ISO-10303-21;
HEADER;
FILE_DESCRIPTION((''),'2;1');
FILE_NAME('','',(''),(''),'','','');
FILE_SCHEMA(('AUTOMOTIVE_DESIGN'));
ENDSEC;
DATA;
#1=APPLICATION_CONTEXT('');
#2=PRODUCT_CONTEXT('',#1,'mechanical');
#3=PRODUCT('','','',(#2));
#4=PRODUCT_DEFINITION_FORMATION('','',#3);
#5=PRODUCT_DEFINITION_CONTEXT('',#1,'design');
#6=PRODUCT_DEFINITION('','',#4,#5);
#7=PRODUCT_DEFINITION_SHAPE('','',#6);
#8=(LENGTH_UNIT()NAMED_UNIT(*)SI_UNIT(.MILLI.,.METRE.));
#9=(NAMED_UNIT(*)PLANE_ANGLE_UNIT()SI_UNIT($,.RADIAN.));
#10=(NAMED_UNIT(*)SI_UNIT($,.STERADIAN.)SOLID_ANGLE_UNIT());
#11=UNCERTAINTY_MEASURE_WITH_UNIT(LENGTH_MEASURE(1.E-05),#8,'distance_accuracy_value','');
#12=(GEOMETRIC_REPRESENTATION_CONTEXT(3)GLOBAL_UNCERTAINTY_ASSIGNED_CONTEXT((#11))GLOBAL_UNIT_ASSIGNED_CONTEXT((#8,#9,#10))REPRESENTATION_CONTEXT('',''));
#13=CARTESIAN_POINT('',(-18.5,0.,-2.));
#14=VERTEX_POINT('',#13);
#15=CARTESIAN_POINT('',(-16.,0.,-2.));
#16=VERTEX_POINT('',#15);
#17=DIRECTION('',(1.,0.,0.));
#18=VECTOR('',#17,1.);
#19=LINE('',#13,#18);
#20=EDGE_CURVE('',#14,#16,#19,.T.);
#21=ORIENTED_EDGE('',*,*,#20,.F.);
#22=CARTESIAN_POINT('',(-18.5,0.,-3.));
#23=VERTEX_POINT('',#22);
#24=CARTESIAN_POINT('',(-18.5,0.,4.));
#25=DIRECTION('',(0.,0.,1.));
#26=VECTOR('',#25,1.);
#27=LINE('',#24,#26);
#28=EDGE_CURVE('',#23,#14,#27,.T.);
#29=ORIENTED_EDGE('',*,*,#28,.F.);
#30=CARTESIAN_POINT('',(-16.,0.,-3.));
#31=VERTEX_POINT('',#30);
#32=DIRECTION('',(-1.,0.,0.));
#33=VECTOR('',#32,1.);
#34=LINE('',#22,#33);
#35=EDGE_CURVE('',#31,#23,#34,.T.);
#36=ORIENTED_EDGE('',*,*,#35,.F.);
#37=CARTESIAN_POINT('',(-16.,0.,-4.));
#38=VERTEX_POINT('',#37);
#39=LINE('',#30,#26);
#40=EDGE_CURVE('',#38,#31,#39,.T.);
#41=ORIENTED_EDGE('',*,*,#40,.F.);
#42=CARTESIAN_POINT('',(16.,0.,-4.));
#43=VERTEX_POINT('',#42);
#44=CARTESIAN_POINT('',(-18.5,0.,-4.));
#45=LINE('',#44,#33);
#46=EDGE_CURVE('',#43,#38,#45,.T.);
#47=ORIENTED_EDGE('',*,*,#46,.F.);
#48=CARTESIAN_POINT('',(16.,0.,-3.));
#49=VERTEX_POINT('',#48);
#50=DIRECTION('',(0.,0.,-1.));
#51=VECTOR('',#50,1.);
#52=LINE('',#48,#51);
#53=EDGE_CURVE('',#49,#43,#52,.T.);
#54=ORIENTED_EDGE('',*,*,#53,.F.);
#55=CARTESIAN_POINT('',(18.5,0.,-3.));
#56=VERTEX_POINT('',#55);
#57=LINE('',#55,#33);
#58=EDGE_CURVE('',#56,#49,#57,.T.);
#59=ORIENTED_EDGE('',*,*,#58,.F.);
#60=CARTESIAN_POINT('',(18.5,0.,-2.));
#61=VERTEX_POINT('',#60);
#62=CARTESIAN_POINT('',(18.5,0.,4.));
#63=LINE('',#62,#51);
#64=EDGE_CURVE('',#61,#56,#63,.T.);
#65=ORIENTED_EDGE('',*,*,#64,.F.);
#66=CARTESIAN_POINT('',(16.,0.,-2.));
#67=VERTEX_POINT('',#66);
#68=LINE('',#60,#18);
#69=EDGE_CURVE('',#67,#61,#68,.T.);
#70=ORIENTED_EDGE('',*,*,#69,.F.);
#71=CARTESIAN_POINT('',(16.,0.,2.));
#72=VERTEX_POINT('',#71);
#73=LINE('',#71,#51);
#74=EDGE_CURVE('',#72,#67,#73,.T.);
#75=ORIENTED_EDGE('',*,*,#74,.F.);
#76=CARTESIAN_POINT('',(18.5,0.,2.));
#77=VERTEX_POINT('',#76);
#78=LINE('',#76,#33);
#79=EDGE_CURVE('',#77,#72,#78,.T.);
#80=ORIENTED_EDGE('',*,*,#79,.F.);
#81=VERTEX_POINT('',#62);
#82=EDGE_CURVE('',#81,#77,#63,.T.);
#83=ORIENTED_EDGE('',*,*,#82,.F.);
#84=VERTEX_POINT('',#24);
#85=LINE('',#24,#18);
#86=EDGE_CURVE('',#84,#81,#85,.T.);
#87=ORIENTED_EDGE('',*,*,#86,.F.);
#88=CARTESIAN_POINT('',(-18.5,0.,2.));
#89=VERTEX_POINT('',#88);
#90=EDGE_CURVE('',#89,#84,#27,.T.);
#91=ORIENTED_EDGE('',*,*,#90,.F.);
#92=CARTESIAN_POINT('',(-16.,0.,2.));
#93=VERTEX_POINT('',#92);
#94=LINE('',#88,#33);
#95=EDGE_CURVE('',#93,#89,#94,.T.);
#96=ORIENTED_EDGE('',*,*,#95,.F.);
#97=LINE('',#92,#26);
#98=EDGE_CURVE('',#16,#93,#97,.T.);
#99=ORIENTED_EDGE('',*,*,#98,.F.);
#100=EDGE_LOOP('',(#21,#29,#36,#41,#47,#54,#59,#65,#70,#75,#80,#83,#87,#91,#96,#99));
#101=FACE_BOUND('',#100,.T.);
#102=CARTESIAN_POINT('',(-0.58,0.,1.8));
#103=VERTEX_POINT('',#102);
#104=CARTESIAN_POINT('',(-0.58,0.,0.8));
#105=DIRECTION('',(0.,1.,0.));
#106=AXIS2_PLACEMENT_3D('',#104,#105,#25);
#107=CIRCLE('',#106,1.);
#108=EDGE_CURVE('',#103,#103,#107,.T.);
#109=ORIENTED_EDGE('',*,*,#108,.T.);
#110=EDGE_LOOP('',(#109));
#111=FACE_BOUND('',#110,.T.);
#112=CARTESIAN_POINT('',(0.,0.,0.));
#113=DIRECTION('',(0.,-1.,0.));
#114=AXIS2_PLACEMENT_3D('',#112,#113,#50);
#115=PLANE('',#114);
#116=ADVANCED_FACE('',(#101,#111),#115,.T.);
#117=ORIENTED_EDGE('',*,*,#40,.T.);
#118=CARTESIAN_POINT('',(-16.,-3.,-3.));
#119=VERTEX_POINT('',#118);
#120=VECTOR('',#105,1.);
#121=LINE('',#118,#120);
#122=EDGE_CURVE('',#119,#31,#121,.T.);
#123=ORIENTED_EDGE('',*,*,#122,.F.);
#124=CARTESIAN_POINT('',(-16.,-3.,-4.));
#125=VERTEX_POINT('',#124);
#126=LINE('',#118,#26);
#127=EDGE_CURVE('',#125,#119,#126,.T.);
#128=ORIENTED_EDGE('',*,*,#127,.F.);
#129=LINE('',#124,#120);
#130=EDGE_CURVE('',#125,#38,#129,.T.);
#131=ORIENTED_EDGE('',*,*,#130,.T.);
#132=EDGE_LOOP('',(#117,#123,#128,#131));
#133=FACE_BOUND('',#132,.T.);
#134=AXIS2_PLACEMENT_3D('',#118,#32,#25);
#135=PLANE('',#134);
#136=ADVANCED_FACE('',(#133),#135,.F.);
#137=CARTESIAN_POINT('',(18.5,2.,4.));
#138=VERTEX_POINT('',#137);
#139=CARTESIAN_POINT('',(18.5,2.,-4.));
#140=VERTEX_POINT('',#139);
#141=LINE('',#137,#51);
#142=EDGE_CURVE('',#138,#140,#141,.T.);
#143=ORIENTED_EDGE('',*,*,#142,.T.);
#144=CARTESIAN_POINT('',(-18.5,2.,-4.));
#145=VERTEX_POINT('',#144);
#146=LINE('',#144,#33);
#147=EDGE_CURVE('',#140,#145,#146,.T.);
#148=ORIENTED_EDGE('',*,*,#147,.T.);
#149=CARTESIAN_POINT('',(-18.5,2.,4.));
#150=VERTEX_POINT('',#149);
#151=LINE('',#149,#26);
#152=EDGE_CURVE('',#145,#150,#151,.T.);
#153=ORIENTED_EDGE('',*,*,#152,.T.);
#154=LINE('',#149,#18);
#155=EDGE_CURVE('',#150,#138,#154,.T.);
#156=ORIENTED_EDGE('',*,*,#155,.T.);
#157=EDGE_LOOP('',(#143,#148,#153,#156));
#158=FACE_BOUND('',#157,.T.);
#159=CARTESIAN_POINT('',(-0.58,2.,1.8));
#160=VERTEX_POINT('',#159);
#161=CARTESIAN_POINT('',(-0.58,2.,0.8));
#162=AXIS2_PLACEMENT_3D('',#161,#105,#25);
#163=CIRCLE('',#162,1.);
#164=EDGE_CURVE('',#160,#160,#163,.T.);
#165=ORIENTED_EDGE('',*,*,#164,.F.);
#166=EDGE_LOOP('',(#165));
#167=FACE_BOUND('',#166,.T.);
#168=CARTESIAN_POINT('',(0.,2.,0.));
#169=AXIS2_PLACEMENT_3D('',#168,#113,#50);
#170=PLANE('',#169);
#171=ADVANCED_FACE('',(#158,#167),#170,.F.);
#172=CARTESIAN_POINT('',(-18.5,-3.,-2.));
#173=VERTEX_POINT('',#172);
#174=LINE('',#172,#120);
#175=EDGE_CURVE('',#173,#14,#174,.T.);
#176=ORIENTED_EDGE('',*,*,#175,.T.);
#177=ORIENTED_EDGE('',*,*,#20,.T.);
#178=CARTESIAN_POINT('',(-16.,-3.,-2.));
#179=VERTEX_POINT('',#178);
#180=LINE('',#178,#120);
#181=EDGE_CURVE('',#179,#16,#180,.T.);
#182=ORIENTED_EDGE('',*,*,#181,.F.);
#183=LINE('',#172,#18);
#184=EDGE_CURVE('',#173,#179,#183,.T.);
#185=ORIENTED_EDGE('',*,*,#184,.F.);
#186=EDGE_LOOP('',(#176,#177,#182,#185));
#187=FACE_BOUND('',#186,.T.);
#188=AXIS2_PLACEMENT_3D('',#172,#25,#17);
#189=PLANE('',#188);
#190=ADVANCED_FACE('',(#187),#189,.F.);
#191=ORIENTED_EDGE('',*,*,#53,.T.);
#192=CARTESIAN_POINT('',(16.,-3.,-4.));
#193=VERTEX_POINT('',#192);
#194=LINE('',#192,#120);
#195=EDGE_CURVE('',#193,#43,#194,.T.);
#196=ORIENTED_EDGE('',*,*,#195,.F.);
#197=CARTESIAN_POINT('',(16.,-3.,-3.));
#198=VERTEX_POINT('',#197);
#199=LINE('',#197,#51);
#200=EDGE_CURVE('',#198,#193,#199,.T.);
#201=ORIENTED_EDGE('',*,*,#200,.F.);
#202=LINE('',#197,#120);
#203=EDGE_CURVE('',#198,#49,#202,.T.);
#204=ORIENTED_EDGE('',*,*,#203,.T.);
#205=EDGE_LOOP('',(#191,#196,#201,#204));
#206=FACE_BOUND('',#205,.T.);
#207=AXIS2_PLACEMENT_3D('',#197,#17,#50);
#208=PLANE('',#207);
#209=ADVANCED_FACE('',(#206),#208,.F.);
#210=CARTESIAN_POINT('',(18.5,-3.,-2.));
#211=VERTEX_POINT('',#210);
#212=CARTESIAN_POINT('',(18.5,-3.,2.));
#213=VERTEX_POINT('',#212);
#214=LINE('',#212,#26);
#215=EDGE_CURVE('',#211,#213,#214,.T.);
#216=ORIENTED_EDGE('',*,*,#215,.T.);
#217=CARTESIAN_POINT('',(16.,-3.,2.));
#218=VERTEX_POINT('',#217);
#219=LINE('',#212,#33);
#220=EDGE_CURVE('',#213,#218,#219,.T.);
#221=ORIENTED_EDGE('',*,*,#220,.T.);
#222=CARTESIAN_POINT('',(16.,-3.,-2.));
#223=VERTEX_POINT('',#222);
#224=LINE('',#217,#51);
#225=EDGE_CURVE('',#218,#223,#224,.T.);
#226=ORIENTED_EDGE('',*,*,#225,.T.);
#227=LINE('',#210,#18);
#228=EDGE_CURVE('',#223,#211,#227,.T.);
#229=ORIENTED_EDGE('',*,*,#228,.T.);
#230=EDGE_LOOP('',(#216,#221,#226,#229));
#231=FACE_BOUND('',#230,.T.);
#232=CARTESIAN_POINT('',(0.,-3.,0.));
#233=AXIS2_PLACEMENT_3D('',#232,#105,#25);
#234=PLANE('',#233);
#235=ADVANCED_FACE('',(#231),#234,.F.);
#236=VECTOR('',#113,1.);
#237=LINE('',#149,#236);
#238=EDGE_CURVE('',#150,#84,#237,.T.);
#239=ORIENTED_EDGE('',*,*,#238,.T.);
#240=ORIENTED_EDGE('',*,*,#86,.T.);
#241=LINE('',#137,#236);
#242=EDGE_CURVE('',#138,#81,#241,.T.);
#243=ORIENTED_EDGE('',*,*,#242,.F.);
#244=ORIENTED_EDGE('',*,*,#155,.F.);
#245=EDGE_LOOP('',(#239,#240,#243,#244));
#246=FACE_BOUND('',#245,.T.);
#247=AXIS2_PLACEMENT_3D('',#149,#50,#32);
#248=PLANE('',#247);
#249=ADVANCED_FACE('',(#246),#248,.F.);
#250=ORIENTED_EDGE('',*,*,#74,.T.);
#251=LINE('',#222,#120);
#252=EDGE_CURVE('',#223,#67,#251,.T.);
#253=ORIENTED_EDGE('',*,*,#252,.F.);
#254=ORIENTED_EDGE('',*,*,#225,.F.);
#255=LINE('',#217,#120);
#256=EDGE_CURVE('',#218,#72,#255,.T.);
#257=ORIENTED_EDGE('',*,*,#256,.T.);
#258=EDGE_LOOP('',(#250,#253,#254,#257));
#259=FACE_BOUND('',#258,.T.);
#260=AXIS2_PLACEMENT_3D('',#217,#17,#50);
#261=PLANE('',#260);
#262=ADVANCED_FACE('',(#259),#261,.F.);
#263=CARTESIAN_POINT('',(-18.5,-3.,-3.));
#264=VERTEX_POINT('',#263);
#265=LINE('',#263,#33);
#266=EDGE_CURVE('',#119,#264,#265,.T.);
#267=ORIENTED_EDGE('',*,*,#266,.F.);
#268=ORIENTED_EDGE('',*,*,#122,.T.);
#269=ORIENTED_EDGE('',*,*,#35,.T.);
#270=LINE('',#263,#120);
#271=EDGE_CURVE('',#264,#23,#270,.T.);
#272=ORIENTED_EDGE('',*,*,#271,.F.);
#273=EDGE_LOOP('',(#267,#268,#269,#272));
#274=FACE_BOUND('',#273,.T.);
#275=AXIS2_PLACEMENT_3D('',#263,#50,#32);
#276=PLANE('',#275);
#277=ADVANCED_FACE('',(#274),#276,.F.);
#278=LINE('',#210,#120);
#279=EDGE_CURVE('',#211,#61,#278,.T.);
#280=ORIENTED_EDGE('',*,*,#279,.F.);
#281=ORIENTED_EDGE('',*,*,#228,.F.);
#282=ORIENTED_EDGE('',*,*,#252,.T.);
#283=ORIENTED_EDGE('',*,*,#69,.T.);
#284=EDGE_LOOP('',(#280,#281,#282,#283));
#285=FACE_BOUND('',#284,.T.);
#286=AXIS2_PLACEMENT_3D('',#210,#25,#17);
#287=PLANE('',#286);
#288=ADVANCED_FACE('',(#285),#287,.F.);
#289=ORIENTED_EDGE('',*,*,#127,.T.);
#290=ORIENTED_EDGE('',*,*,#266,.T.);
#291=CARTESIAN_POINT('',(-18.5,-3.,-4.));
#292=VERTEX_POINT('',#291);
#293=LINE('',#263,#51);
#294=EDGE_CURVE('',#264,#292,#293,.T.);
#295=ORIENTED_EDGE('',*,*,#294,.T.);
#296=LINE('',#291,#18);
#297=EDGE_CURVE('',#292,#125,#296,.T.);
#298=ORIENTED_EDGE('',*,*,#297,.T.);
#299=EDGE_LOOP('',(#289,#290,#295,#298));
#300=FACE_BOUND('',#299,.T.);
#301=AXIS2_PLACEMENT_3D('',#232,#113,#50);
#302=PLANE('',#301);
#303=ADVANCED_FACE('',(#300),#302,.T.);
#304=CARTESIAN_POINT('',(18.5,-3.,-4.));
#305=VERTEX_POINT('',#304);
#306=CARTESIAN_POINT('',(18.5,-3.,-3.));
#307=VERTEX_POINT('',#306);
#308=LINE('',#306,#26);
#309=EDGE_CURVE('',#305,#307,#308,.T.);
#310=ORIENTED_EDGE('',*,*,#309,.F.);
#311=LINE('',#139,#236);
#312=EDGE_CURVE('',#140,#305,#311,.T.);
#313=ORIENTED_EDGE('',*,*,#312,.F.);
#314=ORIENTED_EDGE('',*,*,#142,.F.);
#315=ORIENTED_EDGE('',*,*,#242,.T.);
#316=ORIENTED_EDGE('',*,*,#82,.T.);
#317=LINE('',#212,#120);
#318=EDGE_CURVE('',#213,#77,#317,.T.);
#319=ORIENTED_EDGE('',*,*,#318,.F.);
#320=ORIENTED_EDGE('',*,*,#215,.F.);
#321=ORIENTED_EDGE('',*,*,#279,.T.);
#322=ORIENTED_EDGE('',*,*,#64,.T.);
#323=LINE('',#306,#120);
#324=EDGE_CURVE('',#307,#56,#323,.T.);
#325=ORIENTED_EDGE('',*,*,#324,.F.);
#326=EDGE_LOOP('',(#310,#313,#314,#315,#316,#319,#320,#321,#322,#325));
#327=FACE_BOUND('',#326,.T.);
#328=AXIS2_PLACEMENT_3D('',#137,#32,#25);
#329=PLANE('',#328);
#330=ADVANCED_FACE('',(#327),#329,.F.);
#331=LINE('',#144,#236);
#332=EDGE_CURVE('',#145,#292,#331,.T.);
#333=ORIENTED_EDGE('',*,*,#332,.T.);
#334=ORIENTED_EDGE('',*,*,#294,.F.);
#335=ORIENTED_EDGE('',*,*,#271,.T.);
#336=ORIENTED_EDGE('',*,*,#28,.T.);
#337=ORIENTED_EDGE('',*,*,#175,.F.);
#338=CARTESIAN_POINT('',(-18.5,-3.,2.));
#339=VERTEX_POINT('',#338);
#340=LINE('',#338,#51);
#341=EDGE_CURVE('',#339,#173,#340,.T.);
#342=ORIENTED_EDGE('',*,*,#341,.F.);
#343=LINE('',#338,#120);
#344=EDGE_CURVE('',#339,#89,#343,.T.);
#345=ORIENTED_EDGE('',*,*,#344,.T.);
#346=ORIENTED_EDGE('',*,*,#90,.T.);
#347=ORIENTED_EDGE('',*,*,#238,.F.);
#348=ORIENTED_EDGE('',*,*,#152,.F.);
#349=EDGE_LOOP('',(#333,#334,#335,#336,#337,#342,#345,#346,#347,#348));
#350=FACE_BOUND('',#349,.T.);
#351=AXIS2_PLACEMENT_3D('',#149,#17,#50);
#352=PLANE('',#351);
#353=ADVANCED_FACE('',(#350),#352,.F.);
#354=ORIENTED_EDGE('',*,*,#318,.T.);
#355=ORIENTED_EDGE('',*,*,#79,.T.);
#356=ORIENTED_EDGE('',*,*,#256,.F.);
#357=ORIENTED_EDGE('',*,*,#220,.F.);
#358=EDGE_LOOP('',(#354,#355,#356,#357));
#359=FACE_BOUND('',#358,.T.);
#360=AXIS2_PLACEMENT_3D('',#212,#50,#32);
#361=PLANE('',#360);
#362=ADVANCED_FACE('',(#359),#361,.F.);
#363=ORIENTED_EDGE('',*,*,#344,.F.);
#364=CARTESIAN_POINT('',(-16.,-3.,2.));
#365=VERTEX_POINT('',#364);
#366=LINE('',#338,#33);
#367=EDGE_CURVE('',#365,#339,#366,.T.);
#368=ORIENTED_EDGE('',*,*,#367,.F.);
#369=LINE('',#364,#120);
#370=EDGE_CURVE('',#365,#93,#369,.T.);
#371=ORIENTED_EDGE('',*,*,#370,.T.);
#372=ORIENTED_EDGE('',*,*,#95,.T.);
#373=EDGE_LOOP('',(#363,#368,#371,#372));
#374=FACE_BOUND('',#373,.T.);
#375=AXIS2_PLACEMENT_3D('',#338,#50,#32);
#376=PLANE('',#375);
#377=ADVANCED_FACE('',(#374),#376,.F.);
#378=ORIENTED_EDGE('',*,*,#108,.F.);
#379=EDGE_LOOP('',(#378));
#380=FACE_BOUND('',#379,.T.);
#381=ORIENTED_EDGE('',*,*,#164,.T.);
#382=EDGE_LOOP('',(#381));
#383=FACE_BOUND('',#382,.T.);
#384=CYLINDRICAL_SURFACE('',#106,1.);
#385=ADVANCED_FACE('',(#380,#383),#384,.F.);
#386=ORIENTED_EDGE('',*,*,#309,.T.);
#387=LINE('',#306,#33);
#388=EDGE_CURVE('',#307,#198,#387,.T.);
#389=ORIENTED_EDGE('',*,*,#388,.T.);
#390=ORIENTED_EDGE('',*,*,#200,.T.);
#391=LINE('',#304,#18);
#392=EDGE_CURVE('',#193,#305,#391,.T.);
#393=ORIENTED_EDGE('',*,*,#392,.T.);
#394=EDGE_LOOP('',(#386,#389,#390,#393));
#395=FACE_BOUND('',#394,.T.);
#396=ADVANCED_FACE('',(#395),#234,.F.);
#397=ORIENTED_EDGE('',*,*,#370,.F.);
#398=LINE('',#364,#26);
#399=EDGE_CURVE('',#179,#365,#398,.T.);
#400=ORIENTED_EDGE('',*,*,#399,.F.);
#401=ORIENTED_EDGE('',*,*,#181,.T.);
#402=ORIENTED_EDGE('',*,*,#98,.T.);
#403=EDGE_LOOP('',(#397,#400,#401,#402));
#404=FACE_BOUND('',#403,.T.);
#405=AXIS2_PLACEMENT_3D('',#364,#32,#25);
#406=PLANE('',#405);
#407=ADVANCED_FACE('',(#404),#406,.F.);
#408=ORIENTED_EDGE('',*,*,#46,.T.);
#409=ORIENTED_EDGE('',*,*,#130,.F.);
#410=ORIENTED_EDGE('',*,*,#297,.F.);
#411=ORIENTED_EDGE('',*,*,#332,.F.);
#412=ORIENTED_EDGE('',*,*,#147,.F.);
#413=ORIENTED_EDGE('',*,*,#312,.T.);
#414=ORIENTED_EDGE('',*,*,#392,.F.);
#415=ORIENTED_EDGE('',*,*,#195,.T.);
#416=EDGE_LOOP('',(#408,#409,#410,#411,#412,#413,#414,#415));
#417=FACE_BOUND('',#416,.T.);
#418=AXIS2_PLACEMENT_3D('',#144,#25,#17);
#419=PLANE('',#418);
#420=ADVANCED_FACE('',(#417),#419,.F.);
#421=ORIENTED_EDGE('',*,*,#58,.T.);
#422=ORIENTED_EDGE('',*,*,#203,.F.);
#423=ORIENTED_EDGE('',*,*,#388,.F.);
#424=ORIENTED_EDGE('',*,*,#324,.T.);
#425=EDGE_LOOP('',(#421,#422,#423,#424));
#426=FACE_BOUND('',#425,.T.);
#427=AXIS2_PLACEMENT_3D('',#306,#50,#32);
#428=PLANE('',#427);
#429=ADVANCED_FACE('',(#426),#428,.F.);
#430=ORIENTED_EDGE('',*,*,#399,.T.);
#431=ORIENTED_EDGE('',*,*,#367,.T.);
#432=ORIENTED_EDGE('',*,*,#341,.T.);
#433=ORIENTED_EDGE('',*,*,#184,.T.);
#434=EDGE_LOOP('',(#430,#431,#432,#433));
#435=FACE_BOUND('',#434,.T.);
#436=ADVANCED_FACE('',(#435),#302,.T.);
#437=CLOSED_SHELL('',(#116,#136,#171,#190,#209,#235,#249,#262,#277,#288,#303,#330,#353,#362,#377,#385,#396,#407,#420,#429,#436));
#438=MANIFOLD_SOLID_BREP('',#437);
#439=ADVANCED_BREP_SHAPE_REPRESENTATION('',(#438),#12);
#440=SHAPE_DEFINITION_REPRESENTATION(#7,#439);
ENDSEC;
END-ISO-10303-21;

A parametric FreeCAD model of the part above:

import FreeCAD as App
import Part
import Sketcher

V = App.Vector
Q = App.Units.Quantity


def add_polygon(sketch, points):
    """Adds a closed chain of lines whose ends are joined by coincident constraints."""
    first, n = sketch.GeometryCount, len(points)
    for a, b in zip(points, points[1:] + points[:1]):
        sketch.addGeometry(Part.LineSegment(App.Vector(*a, 0), App.Vector(*b, 0)), False)
    for i in range(n):
        sketch.addConstraint(Sketcher.Constraint("Coincident", first + i, 2, first + (i + 1) % n, 1))

doc = App.newDocument("Part")
params = doc.addObject("Spreadsheet::Sheet", "Params")
for row, (alias, value) in enumerate([
    ("sketch1_width", "37 mm"),
    ("sketch1_height", "8 mm"),
    ("pad1_length", "2 mm"),
    ("sketch2_diameter", "2 mm"),
    ("sketch3_height", "4 mm"),
    ("sketch3_height2", "1 mm"),
    ("sketch3_width", "2.5 mm"),
    ("pad2_length", "3 mm"),
], start=1):
    params.set(f"A{row}", alias)
    params.set(f"B{row}", "=" + value)
    params.setAlias(f"B{row}", alias)

body = doc.addObject("PartDesign::Body", "Body")

# Sketch on XZ plane
sketch1 = body.newObject("Sketcher::SketchObject", "Sketch")
sketch1.AttachmentSupport = (doc.getObject("XZ_Plane"), [""])
sketch1.MapMode = "FlatFace"
add_polygon(sketch1, [(-18, -4), (-18, 4), (18, 4), (18, -4)])  # lines 0-3
sketch1.addConstraint(Sketcher.Constraint("Vertical", 0))
sketch1.addConstraint(Sketcher.Constraint("Horizontal", 1))
sketch1.addConstraint(Sketcher.Constraint("Vertical", 2))
sketch1.addConstraint(Sketcher.Constraint("Horizontal", 3))
sketch1.addConstraint(Sketcher.Constraint("Symmetric", 0, 2, 2, 2, -1, 1))
sketch1.addConstraint(Sketcher.Constraint("DistanceX", 1, 1, 1, 2, Q("37 mm")))
sketch1.addConstraint(Sketcher.Constraint("DistanceY", 0, 1, 0, 2, Q("8 mm")))
sketch1.setExpression("Constraints[9]", "Params.sketch1_width")
sketch1.setExpression("Constraints[10]", "Params.sketch1_height")
pad1 = body.newObject("PartDesign::Pad", "Pad")
pad1.Profile = sketch1
pad1.setExpression("Length", "Params.pad1_length")
pad1.Reversed = True

# Sketch on XZ plane
sketch2 = body.newObject("Sketcher::SketchObject", "Sketch001")
sketch2.AttachmentSupport = (doc.getObject("XZ_Plane"), [""])
sketch2.MapMode = "FlatFace"
sketch2.AttachmentOffset = App.Placement(V(0, 0, -2), App.Rotation())
sketch2.addGeometry(Part.Circle(V(-0.6, 0.8, 0), V(0, 0, 1), 1), False)
sketch2.addConstraint(Sketcher.Constraint("Diameter", 0, Q("2 mm")))
sketch2.addConstraint(Sketcher.Constraint("DistanceY", -1, 1, 0, 3, Q("0.8 mm")))
sketch2.addConstraint(Sketcher.Constraint("DistanceX", 0, 3, -1, 1, Q("0.58 mm")))
sketch2.setExpression("Constraints[0]", "Params.sketch2_diameter")
pocket1 = body.newObject("PartDesign::Pocket", "Pocket")
pocket1.Profile = sketch2
pocket1.Type = "ThroughAll"
pocket1.Reversed = True

# Sketch on XZ plane
sketch3 = body.newObject("Sketcher::SketchObject", "Sketch002")
sketch3.AttachmentSupport = (doc.getObject("XZ_Plane"), [""])
sketch3.MapMode = "FlatFace"
add_polygon(sketch3, [(16, 2), (16, -2), (18.5, -2), (18.5, 2)])  # lines 0-3
add_polygon(sketch3, [(16, -3), (16, -4), (18.5, -4), (18.5, -3)])  # lines 4-7
add_polygon(sketch3, [(-18.5, -3), (-18.5, -4), (-16, -4), (-16, -3)])  # lines 8-11
add_polygon(sketch3, [(-18.5, 2), (-18.5, -2), (-16, -2), (-16, 2)])  # lines 12-15
sketch3.addConstraint(Sketcher.Constraint("Vertical", 0))
sketch3.addConstraint(Sketcher.Constraint("Horizontal", 1))
sketch3.addConstraint(Sketcher.Constraint("Vertical", 2))
sketch3.addConstraint(Sketcher.Constraint("Horizontal", 3))
sketch3.addConstraint(Sketcher.Constraint("Vertical", 4))
sketch3.addConstraint(Sketcher.Constraint("Horizontal", 5))
sketch3.addConstraint(Sketcher.Constraint("Vertical", 6))
sketch3.addConstraint(Sketcher.Constraint("Horizontal", 7))
sketch3.addConstraint(Sketcher.Constraint("Vertical", 8))
sketch3.addConstraint(Sketcher.Constraint("Horizontal", 9))
sketch3.addConstraint(Sketcher.Constraint("Vertical", 10))
sketch3.addConstraint(Sketcher.Constraint("Horizontal", 11))
sketch3.addConstraint(Sketcher.Constraint("Vertical", 12))
sketch3.addConstraint(Sketcher.Constraint("Horizontal", 13))
sketch3.addConstraint(Sketcher.Constraint("Vertical", 14))
sketch3.addConstraint(Sketcher.Constraint("Horizontal", 15))
sketch3.addConstraint(Sketcher.Constraint("Symmetric", 2, 2, 12, 2, -1, 1))
sketch3.addConstraint(Sketcher.Constraint("Symmetric", 0, 2, 14, 2, -1, 1))
sketch3.addConstraint(Sketcher.Constraint("Symmetric", 5, 2, 8, 2, -2))
sketch3.addConstraint(Sketcher.Constraint("Symmetric", 7, 2, 10, 2, -2))
sketch3.addConstraint(Sketcher.Constraint("Horizontal", 1, 2, 12, 2))
sketch3.addConstraint(Sketcher.Constraint("Vertical", 3, 2, 4, 2))
sketch3.addConstraint(Sketcher.Constraint("Vertical", 2, 2, 5, 2))
sketch3.addConstraint(Sketcher.Constraint("DistanceY", 0, 2, 0, 1, Q("4 mm")))
sketch3.addConstraint(Sketcher.Constraint("DistanceY", 4, 2, 4, 1, Q("1 mm")))
sketch3.addConstraint(Sketcher.Constraint("DistanceX", 1, 1, 1, 2, Q("2.5 mm")))
sketch3.addConstraint(Sketcher.Constraint("DistanceX", -1, 1, 0, 2, Q("16 mm")))
sketch3.addConstraint(Sketcher.Constraint("DistanceY", 4, 2, -1, 1, Q("4 mm")))
sketch3.setExpression("Constraints[39]", "Params.sketch3_height")
sketch3.setExpression("Constraints[40]", "Params.sketch3_height2")
sketch3.setExpression("Constraints[41]", "Params.sketch3_width")
pad2 = body.newObject("PartDesign::Pad", "Pad001")
pad2.Profile = sketch3
pad2.setExpression("Length", "Params.pad2_length")

doc.recompute()
